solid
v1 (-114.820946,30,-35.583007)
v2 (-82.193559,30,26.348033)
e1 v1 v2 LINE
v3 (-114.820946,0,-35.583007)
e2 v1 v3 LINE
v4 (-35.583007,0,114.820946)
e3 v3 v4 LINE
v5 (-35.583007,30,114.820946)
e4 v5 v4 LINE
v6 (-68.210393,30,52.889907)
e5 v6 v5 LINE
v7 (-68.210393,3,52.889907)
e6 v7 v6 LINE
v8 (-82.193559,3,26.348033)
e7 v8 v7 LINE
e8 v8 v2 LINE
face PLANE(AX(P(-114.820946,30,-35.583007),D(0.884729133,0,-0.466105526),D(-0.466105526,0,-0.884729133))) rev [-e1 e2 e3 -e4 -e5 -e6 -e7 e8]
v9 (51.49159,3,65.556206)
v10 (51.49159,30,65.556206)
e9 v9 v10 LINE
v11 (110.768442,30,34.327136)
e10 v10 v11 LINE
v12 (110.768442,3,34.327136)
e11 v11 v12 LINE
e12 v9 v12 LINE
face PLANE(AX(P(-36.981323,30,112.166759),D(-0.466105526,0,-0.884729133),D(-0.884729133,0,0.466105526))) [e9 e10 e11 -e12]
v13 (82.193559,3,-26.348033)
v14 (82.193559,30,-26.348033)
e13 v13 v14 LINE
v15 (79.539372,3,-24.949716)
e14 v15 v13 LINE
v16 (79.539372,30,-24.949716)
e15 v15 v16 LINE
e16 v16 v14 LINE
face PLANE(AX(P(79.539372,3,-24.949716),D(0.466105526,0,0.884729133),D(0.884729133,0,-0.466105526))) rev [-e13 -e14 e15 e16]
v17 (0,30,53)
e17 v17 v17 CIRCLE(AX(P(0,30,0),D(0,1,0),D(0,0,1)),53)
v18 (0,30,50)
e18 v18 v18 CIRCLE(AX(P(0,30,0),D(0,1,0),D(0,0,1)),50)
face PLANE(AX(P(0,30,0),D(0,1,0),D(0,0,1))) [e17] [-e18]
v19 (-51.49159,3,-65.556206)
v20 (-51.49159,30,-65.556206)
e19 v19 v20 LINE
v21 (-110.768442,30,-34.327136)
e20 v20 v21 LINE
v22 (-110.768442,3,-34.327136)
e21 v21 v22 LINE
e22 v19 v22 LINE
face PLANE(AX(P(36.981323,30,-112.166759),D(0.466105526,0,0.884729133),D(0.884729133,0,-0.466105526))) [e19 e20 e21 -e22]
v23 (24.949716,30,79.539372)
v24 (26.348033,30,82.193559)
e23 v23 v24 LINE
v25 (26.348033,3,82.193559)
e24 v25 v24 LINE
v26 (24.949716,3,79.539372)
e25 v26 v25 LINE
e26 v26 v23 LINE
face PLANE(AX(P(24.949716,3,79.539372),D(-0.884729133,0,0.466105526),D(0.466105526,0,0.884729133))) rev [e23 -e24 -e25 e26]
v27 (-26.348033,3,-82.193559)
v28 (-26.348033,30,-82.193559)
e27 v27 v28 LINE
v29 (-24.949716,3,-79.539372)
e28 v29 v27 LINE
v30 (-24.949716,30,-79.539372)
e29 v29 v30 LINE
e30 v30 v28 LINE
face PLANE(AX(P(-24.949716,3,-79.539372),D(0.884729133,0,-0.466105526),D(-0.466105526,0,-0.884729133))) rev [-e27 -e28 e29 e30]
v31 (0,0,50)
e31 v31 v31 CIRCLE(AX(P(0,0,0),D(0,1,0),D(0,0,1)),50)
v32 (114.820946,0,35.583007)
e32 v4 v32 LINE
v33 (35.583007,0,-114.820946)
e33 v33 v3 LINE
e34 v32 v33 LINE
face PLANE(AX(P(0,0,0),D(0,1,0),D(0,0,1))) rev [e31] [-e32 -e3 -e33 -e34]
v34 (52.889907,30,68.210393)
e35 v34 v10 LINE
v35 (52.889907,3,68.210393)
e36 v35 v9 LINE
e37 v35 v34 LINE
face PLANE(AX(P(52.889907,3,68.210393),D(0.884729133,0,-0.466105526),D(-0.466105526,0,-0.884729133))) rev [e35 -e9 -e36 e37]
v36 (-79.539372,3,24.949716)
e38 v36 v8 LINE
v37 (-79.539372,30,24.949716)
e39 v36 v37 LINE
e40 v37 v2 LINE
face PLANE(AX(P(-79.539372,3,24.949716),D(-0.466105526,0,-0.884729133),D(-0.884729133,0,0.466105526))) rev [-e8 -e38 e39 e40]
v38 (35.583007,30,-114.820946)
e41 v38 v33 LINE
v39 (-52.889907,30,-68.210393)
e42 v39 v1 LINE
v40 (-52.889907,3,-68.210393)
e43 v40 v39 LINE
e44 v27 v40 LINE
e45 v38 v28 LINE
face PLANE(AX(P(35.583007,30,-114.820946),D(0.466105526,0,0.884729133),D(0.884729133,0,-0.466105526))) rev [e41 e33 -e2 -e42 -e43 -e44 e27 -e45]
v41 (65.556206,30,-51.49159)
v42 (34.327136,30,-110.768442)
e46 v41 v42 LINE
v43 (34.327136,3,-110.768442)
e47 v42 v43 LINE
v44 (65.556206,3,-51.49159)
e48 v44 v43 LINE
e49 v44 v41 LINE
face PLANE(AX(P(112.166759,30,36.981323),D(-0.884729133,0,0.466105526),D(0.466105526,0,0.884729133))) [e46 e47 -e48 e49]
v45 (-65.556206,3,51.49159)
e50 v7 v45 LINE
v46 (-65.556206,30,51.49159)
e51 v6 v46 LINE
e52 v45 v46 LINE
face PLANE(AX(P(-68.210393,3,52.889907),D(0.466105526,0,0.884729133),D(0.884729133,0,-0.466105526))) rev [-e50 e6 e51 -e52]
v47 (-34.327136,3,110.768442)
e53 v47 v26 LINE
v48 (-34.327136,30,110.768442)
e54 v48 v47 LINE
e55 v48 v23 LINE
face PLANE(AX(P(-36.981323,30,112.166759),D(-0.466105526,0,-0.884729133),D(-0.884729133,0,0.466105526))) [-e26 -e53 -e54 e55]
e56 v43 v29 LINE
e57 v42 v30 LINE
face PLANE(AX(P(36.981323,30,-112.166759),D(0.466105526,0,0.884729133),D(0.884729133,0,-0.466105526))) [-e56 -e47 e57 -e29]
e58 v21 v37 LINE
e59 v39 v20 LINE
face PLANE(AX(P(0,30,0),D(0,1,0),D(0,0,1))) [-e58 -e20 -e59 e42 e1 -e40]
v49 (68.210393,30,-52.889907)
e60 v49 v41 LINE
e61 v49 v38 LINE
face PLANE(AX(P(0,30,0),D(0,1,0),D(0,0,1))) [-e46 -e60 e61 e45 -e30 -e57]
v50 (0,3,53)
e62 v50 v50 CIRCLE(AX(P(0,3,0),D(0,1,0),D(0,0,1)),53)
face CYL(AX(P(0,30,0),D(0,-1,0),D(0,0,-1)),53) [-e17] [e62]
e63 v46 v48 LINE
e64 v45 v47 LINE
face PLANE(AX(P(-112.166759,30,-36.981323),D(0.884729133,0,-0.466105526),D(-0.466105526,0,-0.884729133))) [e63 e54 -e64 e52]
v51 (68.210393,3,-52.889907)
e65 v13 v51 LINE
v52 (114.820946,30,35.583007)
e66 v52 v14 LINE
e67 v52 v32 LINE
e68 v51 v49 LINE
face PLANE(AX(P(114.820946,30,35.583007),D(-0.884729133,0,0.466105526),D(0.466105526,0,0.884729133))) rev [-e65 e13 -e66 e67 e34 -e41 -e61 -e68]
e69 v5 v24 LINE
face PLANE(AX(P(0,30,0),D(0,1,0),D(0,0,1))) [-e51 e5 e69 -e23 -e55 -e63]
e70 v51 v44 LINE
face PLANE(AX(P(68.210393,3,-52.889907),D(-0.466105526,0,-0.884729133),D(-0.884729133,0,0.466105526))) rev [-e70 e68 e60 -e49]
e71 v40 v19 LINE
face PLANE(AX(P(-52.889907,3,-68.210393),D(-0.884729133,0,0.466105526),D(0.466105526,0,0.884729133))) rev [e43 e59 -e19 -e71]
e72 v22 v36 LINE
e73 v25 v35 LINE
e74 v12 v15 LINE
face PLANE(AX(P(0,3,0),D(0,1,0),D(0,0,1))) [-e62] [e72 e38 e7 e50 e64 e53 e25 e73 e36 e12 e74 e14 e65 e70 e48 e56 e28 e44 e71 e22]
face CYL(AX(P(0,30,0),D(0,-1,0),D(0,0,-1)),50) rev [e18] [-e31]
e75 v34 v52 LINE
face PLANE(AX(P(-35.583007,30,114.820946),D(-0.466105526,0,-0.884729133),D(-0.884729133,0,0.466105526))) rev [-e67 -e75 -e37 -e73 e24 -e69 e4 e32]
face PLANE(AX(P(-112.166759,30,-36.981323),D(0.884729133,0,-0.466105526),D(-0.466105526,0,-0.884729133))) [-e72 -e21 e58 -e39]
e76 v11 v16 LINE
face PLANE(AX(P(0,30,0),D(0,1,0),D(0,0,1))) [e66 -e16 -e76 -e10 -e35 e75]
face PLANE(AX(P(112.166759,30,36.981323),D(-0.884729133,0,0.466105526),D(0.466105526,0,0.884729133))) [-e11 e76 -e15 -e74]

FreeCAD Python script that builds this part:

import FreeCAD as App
import Part
import Sketcher
Q = App.Units.Quantity


def faces_at(feature, points):
    """Names of the faces that lie closest to the given points."""
    faces = feature.Shape.Faces
    near = lambda p: min(range(len(faces)), key=lambda i: faces[i].distToShape(Part.Vertex(*p))[0])
    return sorted({f"Face{near(p) + 1}" for p in points})


def add_polygon(sketch, points):
    """Adds a closed chain of lines whose ends are joined by coincident constraints."""
    first, n = sketch.GeometryCount, len(points)
    for a, b in zip(points, points[1:] + points[:1]):
        sketch.addGeometry(Part.LineSegment(App.Vector(*a, 0), App.Vector(*b, 0)), False)
    for i in range(n):
        sketch.addConstraint(Sketcher.Constraint("Coincident", first + i, 2, first + (i + 1) % n, 1))

doc = App.newDocument("Part")
body = doc.addObject("PartDesign::Body", "Body")

sketch1 = body.newObject("Sketcher::SketchObject", "Sketch")
sketch1.AttachmentSupport = (doc.getObject("XZ_Plane"), [""])
sketch1.MapMode = "FlatFace"
add_polygon(sketch1, [(-36, 115), (115, 36), (36, -115), (-115, -36)])
sketch1.addGeometry(Part.Circle(App.Vector(0, 0, 0), App.Vector(0, 0, 1), 50), False)
sketch1.addConstraint([
    Sketcher.Constraint("Coincident", 4, 3, -1, 1),
    Sketcher.Constraint("Symmetric", 0, 2, 2, 2, -1, 1),
    Sketcher.Constraint("Symmetric", 1, 2, 3, 2, -1, 1),
    Sketcher.Constraint("Perpendicular", 0, 1),
    Sketcher.Constraint("Equal", 0, 1),
    Sketcher.Constraint("Diameter", 4, Q("100 mm")),
    Sketcher.Constraint("Distance", 0, Q("170 mm")),
    Sketcher.Constraint("DistanceX", 1, 2, 0, 2, Q("79.237939 mm")),
])
pad1 = body.newObject("PartDesign::Pad", "Pad")
pad1.Profile = sketch1
pad1.Length = 30
pad1.Reversed = True
doc.recompute()

thickness = body.newObject("PartDesign::Thickness", "Thickness")
thickness.Base = (pad1, faces_at(pad1, [(-45.928, 30, 45.928)]))
thickness.Value = 3
thickness.Reversed = True
thickness.Join = "Intersection"

sketch2 = body.newObject("Sketcher::SketchObject", "Sketch001")
sketch2.AttachmentSupport = (doc.getObject("XZ_Plane"), [""])
sketch2.MapMode = "FlatFace"
sketch2.AttachmentOffset = App.Placement(App.Vector(0, 0, -30), App.Rotation())
add_polygon(sketch2, [(79.5, -24.9), (82.2, -26.3), (68.2, -52.9), (65.6, -51.5)])
add_polygon(sketch2, [(51.5, 65.6), (24.9, 79.5), (26.3, 82.2), (52.9, 68.2)])
add_polygon(sketch2, [(-65.6, 51.5), (-79.5, 24.9), (-82.2, 26.3), (-68.2, 52.9)])
add_polygon(sketch2, [(-51.5, -65.6), (-24.9, -79.5), (-26.3, -82.2), (-52.9, -68.2)])
sketch2.addConstraint([
    Sketcher.Constraint("Symmetric", 3, 2, 8, 2, -1, 1),
    Sketcher.Constraint("Symmetric", 0, 2, 9, 2, -1, 1),
    Sketcher.Constraint("Symmetric", 1, 2, 10, 2, -1, 1),
    Sketcher.Constraint("Symmetric", 2, 2, 11, 2, -1, 1),
    Sketcher.Constraint("Symmetric", 4, 2, 12, 2, -1, 1),
    Sketcher.Constraint("Symmetric", 5, 2, 13, 2, -1, 1),
    Sketcher.Constraint("Symmetric", 6, 2, 14, 2, -1, 1),
    Sketcher.Constraint("Symmetric", 7, 2, 15, 2, -1, 1),
    Sketcher.Constraint("Perpendicular", 0, 1),
    Sketcher.Constraint("Perpendicular", 1, 2),
    Sketcher.Constraint("Perpendicular", 2, 3),
    Sketcher.Constraint("Perpendicular", 3, 4),
    Sketcher.Constraint("Perpendicular", 4, 5),
    Sketcher.Constraint("Perpendicular", 5, 6),
    Sketcher.Constraint("Perpendicular", 6, 7),
    Sketcher.Constraint("Equal", 3, 4),
    Sketcher.Constraint("Equal", 2, 5),
    Sketcher.Constraint("Distance", 0, Q("3 mm")),
    Sketcher.Constraint("Distance", 1, Q("30 mm")),
    Sketcher.Constraint("DistanceX", 6, 2, 2, 2, Q("12.666299 mm")),
    Sketcher.Constraint("DistanceY", 10, 2, 7, 2, Q("12.666299 mm")),
    Sketcher.Constraint("DistanceX", -1, 1, 0, 2, Q("82.193559 mm")),
    Sketcher.Constraint("DistanceY", 2, 2, -1, 1, Q("51.49159 mm")),
    Sketcher.Constraint("DistanceX", -1, 1, 3, 2, Q("79.539372 mm")),
])
pocket1 = body.newObject("PartDesign::Pocket", "Pocket")
pocket1.Profile = sketch2
pocket1.Length = 27
pocket1.Reversed = True

doc.recompute()
